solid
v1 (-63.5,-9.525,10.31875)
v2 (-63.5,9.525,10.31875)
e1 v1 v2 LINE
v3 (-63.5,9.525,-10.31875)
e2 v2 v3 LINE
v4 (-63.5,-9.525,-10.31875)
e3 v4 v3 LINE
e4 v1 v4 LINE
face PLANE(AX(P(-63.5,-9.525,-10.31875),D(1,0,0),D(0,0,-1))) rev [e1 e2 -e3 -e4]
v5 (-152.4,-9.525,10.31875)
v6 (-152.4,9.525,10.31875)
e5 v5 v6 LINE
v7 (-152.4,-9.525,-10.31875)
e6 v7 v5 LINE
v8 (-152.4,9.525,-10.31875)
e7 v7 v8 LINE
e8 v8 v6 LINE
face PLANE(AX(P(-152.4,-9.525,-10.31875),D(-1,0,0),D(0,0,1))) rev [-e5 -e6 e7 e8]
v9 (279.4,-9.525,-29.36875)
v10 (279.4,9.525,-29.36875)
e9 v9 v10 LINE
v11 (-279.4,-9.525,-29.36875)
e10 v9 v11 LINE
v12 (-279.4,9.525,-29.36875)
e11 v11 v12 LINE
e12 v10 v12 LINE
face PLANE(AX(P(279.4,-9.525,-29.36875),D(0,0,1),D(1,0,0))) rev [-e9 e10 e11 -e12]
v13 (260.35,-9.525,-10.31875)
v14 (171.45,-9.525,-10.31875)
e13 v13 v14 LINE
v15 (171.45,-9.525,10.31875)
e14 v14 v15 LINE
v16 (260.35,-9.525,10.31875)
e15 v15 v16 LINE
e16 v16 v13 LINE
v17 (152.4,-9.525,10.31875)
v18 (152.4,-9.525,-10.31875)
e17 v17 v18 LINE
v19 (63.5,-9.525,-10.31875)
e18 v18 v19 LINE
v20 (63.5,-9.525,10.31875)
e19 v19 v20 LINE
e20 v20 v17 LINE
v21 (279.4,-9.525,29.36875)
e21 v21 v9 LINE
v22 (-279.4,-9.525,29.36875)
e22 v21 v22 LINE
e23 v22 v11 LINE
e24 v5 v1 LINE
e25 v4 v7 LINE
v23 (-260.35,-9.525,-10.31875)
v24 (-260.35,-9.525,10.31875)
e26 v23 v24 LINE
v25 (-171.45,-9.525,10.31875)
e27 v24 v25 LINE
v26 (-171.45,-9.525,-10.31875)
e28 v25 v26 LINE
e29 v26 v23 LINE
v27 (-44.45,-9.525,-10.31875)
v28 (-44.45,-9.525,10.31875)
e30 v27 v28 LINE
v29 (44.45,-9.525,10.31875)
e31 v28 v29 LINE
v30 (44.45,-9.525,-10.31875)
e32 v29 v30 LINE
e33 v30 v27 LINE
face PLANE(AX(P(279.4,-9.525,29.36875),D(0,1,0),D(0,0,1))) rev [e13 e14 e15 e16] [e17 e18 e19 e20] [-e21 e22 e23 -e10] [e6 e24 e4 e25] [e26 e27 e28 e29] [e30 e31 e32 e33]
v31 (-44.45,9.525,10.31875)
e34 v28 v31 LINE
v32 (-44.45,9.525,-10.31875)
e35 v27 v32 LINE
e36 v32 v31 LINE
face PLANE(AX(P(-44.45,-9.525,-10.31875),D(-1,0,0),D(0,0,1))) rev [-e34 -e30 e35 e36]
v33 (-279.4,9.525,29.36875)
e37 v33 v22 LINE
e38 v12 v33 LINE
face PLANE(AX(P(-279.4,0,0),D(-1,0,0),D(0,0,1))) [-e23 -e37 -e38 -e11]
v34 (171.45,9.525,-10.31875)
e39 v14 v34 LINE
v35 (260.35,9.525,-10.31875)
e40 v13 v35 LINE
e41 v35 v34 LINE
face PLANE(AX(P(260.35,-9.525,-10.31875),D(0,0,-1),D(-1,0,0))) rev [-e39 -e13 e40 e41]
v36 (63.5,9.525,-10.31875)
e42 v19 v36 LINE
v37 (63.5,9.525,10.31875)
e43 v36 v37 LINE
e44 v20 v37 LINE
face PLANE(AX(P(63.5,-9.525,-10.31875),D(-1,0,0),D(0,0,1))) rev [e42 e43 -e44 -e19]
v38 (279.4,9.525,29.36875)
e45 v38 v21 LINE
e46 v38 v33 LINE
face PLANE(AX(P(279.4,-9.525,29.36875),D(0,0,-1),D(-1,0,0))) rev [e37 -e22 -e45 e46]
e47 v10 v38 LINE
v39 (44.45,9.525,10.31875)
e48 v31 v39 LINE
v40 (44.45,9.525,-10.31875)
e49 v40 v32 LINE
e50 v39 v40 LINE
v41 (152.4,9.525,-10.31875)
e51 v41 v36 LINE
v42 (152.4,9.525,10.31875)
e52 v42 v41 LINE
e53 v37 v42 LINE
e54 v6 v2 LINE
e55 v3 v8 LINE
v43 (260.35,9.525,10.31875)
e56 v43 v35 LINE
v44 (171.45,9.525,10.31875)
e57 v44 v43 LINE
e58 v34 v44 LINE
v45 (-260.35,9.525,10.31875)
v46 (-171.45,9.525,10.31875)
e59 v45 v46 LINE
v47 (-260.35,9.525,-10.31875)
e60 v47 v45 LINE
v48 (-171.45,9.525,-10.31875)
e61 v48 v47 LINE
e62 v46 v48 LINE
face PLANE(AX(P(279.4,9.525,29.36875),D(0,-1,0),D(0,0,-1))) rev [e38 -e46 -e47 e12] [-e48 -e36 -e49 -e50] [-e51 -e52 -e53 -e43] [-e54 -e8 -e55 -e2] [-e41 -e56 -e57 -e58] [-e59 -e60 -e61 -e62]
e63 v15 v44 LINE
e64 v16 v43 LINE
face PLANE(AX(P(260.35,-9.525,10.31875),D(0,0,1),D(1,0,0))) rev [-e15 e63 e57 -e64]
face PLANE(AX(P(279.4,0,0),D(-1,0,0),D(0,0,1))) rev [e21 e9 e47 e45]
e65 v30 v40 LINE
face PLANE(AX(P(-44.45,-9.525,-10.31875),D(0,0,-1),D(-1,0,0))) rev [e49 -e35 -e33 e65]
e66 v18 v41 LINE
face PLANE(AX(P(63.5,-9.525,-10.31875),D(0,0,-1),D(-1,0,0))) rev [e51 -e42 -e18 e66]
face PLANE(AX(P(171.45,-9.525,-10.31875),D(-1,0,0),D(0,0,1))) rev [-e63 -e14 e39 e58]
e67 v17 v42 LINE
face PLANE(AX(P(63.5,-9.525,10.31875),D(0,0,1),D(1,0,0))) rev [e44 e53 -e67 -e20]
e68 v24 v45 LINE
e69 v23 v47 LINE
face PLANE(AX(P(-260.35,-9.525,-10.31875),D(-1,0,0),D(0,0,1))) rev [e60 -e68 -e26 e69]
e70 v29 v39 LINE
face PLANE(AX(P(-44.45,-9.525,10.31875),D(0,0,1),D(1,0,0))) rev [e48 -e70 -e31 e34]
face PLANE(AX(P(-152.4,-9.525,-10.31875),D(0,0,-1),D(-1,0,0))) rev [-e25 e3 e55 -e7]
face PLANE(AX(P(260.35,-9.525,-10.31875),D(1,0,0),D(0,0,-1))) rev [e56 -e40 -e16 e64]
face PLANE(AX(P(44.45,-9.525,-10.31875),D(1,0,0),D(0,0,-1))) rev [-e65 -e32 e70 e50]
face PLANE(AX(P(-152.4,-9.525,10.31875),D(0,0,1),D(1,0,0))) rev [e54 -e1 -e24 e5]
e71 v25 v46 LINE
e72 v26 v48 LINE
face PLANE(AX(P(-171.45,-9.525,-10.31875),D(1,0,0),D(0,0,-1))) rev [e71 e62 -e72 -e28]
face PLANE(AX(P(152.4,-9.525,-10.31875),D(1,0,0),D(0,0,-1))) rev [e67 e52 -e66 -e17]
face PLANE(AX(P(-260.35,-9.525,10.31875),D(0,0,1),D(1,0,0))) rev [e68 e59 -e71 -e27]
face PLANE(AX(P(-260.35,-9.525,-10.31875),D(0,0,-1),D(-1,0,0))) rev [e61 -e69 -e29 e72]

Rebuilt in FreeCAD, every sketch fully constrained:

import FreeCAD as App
import Part
import Sketcher
from FreeCAD import Vector
Q = App.Units.Quantity


def add_polygon(sketch, points):
    """Adds a closed chain of lines whose ends are joined by coincident constraints."""
    first, n = sketch.GeometryCount, len(points)
    for a, b in zip(points, points[1:] + points[:1]):
        sketch.addGeometry(Part.LineSegment(App.Vector(*a, 0), App.Vector(*b, 0)), False)
    for i in range(n):
        sketch.addConstraint(Sketcher.Constraint("Coincident", first + i, 2, first + (i + 1) % n, 1))

doc = App.newDocument("Part")
body = doc.addObject("PartDesign::Body", "Body")

# Sketch on YZ plane
sketch1 = body.newObject("Sketcher::SketchObject", "Sketch")
sketch1.AttachmentSupport = (doc.getObject("YZ_Plane"), [""])
sketch1.MapMode = "FlatFace"
add_polygon(sketch1, [(10, 29), (-10, 29), (-10, -29), (10, -29)])  # lines 0-3
sketch1.addConstraint([
    Sketcher.Constraint("Horizontal", 0),
    Sketcher.Constraint("Vertical", 1),
    Sketcher.Constraint("Horizontal", 2),
    Sketcher.Constraint("Vertical", 3),
    Sketcher.Constraint("Symmetric", 0, 2, 2, 2, -1, 1),
    Sketcher.Constraint("DistanceX", 0, 2, 0, 1, Q("0.75 in")),
    Sketcher.Constraint("DistanceY", 1, 2, 1, 1, Q("2.3125 in")),
])
pad1 = body.newObject("PartDesign::Pad", "Pad")
pad1.Profile = sketch1
pad1.Length = Q("22 in")
pad1.Midplane = True

# Sketch on XZ plane
sketch2 = body.newObject("Sketcher::SketchObject", "Sketch001")
sketch2.AttachmentSupport = (doc.getObject("XZ_Plane"), [""])
sketch2.MapMode = "FlatFace"
sketch2.AttachmentOffset = App.Placement(Vector(0, 0, -0.375 * 25.4), App.Rotation())
add_polygon(sketch2, [(-260, -10), (-260, 10), (-171, 10), (-171, -10)])  # lines 0-3
add_polygon(sketch2, [(171, -10), (171, 10), (260, 10), (260, -10)])  # lines 4-7
add_polygon(sketch2, [(-152, -10), (-152, 10), (-64, 10), (-64, -10)])  # lines 8-11
add_polygon(sketch2, [(-44, -10), (-44, 10), (44, 10), (44, -10)])  # lines 12-15
add_polygon(sketch2, [(64, -10), (64, 10), (152, 10), (152, -10)])  # lines 16-19
sketch2.addConstraint([
    Sketcher.Constraint("Vertical", 0),
    Sketcher.Constraint("Horizontal", 1),
    Sketcher.Constraint("Vertical", 2),
    Sketcher.Constraint("Horizontal", 3),
    Sketcher.Constraint("Vertical", 4),
    Sketcher.Constraint("Horizontal", 5),
    Sketcher.Constraint("Vertical", 6),
    Sketcher.Constraint("Horizontal", 7),
    Sketcher.Constraint("Vertical", 8),
    Sketcher.Constraint("Horizontal", 9),
    Sketcher.Constraint("Vertical", 10),
    Sketcher.Constraint("Horizontal", 11),
    Sketcher.Constraint("Vertical", 12),
    Sketcher.Constraint("Horizontal", 13),
    Sketcher.Constraint("Vertical", 14),
    Sketcher.Constraint("Horizontal", 15),
    Sketcher.Constraint("Vertical", 16),
    Sketcher.Constraint("Horizontal", 17),
    Sketcher.Constraint("Vertical", 18),
    Sketcher.Constraint("Horizontal", 19),
    Sketcher.Constraint("Symmetric", 2, 2, 4, 2, -1, 1),
    Sketcher.Constraint("Symmetric", 0, 2, 6, 2, -1, 1),
    Sketcher.Constraint("Symmetric", 12, 2, 14, 2, -1, 1),
    Sketcher.Constraint("Symmetric", 10, 2, 16, 2, -1, 1),
    Sketcher.Constraint("Symmetric", 8, 2, 18, 2, -1, 1),
    Sketcher.Constraint("Horizontal", 1, 2, 4, 2),
    Sketcher.Constraint("Horizontal", 5, 2, 8, 2),
    Sketcher.Constraint("Horizontal", 7, 2, 10, 2),
    Sketcher.Constraint("Horizontal", 9, 2, 12, 2),
    Sketcher.Constraint("Equal", 7, 9),
    Sketcher.Constraint("Equal", 11, 13),
    Sketcher.Constraint("DistanceX", 1, 1, 1, 2, Q("3.5 in")),
    Sketcher.Constraint("DistanceX", 8, 2, -1, 1, Q("6 in")),
    Sketcher.Constraint("DistanceX", 0, 2, 4, 2, Q("17 in")),
    Sketcher.Constraint("DistanceY", 0, 1, 0, 2, Q("0.8125 in")),
])
pocket1 = body.newObject("PartDesign::Pocket", "Pocket")
pocket1.Profile = sketch2
pocket1.Type = "ThroughAll"
pocket1.Reversed = True

doc.recompute()
